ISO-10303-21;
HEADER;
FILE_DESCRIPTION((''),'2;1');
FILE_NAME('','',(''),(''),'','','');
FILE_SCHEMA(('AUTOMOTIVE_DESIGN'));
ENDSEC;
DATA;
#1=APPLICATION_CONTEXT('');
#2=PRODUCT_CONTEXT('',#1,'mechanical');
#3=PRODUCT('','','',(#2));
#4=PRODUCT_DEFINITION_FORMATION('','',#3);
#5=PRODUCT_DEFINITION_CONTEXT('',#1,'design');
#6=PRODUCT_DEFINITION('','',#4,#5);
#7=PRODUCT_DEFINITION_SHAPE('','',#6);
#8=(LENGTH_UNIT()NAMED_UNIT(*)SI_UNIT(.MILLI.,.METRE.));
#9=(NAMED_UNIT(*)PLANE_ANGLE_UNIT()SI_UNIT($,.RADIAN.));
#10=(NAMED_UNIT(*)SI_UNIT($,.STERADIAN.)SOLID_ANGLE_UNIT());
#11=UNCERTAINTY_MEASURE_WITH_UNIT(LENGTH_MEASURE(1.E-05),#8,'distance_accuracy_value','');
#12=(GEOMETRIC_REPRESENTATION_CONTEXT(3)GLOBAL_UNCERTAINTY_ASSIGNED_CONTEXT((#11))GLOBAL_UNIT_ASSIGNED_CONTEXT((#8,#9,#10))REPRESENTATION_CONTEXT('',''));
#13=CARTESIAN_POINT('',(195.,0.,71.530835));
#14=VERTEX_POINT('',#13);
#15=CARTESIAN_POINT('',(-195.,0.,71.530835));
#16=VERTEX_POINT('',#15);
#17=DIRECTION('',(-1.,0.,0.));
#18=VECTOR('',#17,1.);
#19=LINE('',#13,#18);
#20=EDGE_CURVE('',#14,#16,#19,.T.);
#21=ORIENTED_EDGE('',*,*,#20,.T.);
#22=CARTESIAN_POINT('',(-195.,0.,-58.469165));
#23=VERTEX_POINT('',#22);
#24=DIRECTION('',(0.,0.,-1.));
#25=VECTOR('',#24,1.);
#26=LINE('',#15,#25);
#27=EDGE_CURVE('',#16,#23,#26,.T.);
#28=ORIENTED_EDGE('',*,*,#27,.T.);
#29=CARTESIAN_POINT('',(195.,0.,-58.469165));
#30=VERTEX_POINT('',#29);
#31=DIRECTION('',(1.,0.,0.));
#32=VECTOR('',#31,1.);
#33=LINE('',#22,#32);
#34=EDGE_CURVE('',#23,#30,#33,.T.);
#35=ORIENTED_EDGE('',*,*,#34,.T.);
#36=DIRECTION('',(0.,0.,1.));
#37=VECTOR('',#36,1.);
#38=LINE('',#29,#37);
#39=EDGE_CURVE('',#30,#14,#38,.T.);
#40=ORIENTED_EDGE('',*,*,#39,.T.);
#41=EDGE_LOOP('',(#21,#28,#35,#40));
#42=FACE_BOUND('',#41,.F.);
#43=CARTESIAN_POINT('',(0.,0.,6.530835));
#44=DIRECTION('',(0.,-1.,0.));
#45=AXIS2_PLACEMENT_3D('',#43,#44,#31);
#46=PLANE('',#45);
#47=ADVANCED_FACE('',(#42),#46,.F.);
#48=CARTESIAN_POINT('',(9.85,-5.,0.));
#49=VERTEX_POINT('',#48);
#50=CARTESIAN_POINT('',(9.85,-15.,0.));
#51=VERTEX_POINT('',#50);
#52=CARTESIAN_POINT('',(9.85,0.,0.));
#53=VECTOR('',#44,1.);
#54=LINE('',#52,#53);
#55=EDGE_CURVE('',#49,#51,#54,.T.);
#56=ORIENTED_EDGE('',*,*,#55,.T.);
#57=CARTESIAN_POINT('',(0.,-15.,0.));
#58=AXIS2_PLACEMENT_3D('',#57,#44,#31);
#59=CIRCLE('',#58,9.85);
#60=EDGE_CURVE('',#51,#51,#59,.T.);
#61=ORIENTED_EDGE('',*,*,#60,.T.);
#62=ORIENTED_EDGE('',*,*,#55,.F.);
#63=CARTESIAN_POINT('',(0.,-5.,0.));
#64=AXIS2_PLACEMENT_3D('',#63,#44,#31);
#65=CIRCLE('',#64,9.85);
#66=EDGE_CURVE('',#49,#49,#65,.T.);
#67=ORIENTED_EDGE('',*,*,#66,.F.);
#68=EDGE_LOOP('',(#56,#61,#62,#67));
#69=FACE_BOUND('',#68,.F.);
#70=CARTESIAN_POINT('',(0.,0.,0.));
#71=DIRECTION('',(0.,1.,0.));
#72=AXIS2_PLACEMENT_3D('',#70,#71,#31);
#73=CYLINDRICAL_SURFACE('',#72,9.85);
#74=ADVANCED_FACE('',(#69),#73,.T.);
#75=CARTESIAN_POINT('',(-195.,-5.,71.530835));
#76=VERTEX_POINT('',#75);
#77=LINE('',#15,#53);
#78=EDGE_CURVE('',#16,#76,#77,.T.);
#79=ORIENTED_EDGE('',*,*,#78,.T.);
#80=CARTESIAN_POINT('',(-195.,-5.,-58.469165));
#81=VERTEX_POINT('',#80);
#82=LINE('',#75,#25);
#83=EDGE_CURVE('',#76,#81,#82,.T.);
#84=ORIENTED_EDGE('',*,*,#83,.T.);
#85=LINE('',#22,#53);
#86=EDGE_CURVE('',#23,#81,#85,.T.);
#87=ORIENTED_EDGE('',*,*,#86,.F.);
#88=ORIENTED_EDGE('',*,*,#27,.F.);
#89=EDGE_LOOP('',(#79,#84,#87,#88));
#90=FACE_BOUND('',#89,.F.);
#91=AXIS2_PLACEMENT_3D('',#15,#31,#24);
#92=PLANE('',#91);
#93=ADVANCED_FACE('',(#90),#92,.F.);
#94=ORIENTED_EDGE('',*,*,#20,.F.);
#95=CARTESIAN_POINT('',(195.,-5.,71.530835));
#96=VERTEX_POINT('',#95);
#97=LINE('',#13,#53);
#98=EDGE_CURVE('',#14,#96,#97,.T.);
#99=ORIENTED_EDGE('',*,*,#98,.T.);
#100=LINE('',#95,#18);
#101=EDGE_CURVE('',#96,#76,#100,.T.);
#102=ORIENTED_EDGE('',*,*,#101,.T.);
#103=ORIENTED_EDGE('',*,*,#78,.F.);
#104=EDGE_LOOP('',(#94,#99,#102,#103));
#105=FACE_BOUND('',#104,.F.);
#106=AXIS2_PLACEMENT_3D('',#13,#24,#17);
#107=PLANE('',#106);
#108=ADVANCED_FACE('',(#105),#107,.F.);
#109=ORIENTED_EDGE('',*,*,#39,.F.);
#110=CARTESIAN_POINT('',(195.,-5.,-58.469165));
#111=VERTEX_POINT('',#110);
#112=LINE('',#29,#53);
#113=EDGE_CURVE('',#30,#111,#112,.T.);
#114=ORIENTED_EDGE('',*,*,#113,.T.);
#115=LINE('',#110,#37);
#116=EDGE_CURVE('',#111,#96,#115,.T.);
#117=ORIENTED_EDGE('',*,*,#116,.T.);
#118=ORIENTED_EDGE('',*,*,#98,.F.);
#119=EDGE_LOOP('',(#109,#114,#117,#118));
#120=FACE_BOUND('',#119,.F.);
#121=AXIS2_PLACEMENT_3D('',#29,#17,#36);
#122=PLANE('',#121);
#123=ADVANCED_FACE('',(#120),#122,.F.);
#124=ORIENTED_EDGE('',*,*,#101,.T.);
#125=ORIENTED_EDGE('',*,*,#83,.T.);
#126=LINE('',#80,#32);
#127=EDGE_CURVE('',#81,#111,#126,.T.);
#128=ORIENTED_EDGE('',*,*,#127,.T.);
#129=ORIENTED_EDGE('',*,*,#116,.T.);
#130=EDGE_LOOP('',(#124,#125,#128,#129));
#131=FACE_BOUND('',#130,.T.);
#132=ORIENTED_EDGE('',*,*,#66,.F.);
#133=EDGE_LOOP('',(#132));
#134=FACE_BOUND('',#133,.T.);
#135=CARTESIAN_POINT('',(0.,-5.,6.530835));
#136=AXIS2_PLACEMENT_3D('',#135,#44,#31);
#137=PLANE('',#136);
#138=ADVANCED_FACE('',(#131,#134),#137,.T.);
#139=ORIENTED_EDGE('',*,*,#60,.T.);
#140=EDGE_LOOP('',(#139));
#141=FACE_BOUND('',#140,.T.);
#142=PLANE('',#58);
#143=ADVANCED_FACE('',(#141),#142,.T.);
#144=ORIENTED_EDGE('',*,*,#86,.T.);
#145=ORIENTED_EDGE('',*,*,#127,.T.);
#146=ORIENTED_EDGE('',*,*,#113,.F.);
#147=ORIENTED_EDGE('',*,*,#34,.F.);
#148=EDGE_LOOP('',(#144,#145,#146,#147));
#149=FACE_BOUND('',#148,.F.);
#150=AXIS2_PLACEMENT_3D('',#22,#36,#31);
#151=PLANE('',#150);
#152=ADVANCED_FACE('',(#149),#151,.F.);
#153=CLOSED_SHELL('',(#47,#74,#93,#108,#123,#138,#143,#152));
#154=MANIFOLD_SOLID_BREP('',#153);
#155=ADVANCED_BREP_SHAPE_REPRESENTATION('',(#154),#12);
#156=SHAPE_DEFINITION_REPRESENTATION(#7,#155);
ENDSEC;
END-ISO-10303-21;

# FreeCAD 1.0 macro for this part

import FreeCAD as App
import Part
import Sketcher
Q = App.Units.Quantity

doc = App.newDocument("Part")
body = doc.addObject("PartDesign::Body", "Body")

sketch1 = body.newObject("Sketcher::SketchObject", "Sketch")
sketch1.AttachmentSupport = (doc.getObject("XZ_Plane"), [""])
sketch1.MapMode = "FlatFace"
sketch1.addGeometry(Part.LineSegment(App.Vector(195, 71.530835, 0), App.Vector(-195, 71.530835, 0)), False)
sketch1.addGeometry(Part.LineSegment(App.Vector(-195, 71.530835, 0), App.Vector(-195, -58.469165, 0)), False)
sketch1.addGeometry(Part.LineSegment(App.Vector(-195, -58.469165, 0), App.Vector(195, -58.469165, 0)), False)
sketch1.addGeometry(Part.LineSegment(App.Vector(195, -58.469165, 0), App.Vector(195, 71.530835, 0)), False)
sketch1.addGeometry(Part.Circle(App.Vector(0, 0, 0), App.Vector(0, 0, 1), 9.85), False)
sketch1.addConstraint(Sketcher.Constraint("Coincident", 0, 2, 1, 1))
sketch1.addConstraint(Sketcher.Constraint("Coincident", 1, 2, 2, 1))
sketch1.addConstraint(Sketcher.Constraint("Coincident", 2, 2, 3, 1))
sketch1.addConstraint(Sketcher.Constraint("Coincident", 3, 2, 0, 1))
sketch1.addConstraint(Sketcher.Constraint("Horizontal", 0))
sketch1.addConstraint(Sketcher.Constraint("Vertical", 1))
sketch1.addConstraint(Sketcher.Constraint("Horizontal", 2))
sketch1.addConstraint(Sketcher.Constraint("Vertical", 3))
sketch1.addConstraint(Sketcher.Constraint("Coincident", 4, 3, -1, 1))
sketch1.addConstraint(Sketcher.Constraint("Diameter", 4, Q("19.7 mm")))
sketch1.addConstraint(Sketcher.Constraint("DistanceX", 0, 2, 0, 1, Q("390 mm")))
sketch1.addConstraint(Sketcher.Constraint("DistanceY", 1, 2, 1, 1, Q("130 mm")))
sketch1.addConstraint(Sketcher.Constraint("DistanceX", 0, 2, -1, 1, Q("195 mm")))
sketch1.addConstraint(Sketcher.Constraint("DistanceY", -1, 1, 0, 2, Q("71.530835 mm")))
pad1 = body.newObject("PartDesign::Pad", "Pad")
pad1.Profile = sketch1
pad1.Length = 5

sketch2 = body.newObject("Sketcher::SketchObject", "Sketch001")
sketch2.AttachmentSupport = (doc.getObject("XZ_Plane"), [""])
sketch2.MapMode = "FlatFace"
sketch2.addGeometry(Part.Circle(App.Vector(0, 0, 0), App.Vector(0, 0, 1), 9.85), False)
sketch2.addConstraint(Sketcher.Constraint("Coincident", 0, 3, -1, 1))
sketch2.addConstraint(Sketcher.Constraint("Diameter", 0, Q("19.7 mm")))
pad2 = body.newObject("PartDesign::Pad", "Pad001")
pad2.Profile = sketch2
pad2.Length = 15

doc.recompute()
